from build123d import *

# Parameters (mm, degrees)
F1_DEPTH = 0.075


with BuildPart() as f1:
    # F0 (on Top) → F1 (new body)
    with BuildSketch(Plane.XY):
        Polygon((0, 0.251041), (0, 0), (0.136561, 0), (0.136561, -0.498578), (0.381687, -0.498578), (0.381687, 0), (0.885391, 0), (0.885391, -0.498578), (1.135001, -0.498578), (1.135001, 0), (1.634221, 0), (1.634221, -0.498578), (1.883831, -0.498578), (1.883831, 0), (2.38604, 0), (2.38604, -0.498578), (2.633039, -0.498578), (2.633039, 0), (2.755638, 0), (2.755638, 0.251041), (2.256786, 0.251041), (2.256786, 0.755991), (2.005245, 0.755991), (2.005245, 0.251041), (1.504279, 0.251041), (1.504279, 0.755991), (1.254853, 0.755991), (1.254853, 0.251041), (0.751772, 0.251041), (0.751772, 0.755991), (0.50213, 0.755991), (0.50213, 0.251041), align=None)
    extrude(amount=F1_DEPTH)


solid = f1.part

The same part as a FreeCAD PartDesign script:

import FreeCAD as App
import Part
import Sketcher

doc = App.newDocument("Part")
params = doc.addObject("Spreadsheet::Sheet", "Params")
for row, (alias, value) in enumerate([
    ("pad1_length", "0.075 mm"),
], start=1):
    params.set(f"A{row}", alias)
    params.set(f"B{row}", "=" + value)
    params.setAlias(f"B{row}", alias)

body = doc.addObject("PartDesign::Body", "Body")

# Sketch on XY plane
sketch1 = body.newObject("Sketcher::SketchObject", "Sketch")
sketch1.AttachmentSupport = (doc.getObject("XY_Plane"), [""])
sketch1.MapMode = "FlatFace"
sketch1.addGeometry(Part.LineSegment(App.Vector(0, 0.251041, 0), App.Vector(0, 0, 0)), False)
sketch1.addGeometry(Part.LineSegment(App.Vector(0, 0, 0), App.Vector(0.136561, 0, 0)), False)
sketch1.addGeometry(Part.LineSegment(App.Vector(0.136561, 0, 0), App.Vector(0.136561, -0.498578, 0)), False)
sketch1.addGeometry(Part.LineSegment(App.Vector(0.136561, -0.498578, 0), App.Vector(0.381687, -0.498578, 0)), False)
sketch1.addGeometry(Part.LineSegment(App.Vector(0.381687, -0.498578, 0), App.Vector(0.381687, 0, 0)), False)
sketch1.addGeometry(Part.LineSegment(App.Vector(0.381687, 0, 0), App.Vector(0.885391, 0, 0)), False)
sketch1.addGeometry(Part.LineSegment(App.Vector(0.885391, 0, 0), App.Vector(0.885391, -0.498578, 0)), False)
sketch1.addGeometry(Part.LineSegment(App.Vector(0.885391, -0.498578, 0), App.Vector(1.135001, -0.498578, 0)), False)
sketch1.addGeometry(Part.LineSegment(App.Vector(1.135001, -0.498578, 0), App.Vector(1.135001, 0, 0)), False)
sketch1.addGeometry(Part.LineSegment(App.Vector(1.135001, 0, 0), App.Vector(1.634221, 0, 0)), False)
sketch1.addGeometry(Part.LineSegment(App.Vector(1.634221, 0, 0), App.Vector(1.634221, -0.498578, 0)), False)
sketch1.addGeometry(Part.LineSegment(App.Vector(1.634221, -0.498578, 0), App.Vector(1.883831, -0.498578, 0)), False)
sketch1.addGeometry(Part.LineSegment(App.Vector(1.883831, -0.498578, 0), App.Vector(1.883831, 0, 0)), False)
sketch1.addGeometry(Part.LineSegment(App.Vector(1.883831, 0, 0), App.Vector(2.38604, 0, 0)), False)
sketch1.addGeometry(Part.LineSegment(App.Vector(2.38604, 0, 0), App.Vector(2.38604, -0.498578, 0)), False)
sketch1.addGeometry(Part.LineSegment(App.Vector(2.38604, -0.498578, 0), App.Vector(2.633039, -0.498578, 0)), False)
sketch1.addGeometry(Part.LineSegment(App.Vector(2.633039, -0.498578, 0), App.Vector(2.633039, 0, 0)), False)
sketch1.addGeometry(Part.LineSegment(App.Vector(2.633039, 0, 0), App.Vector(2.755638, 0, 0)), False)
sketch1.addGeometry(Part.LineSegment(App.Vector(2.755638, 0, 0), App.Vector(2.755638, 0.251041, 0)), False)
sketch1.addGeometry(Part.LineSegment(App.Vector(2.755638, 0.251041, 0), App.Vector(2.256786, 0.251041, 0)), False)
sketch1.addGeometry(Part.LineSegment(App.Vector(2.256786, 0.251041, 0), App.Vector(2.256786, 0.755991, 0)), False)
sketch1.addGeometry(Part.LineSegment(App.Vector(2.256786, 0.755991, 0), App.Vector(2.005245, 0.755991, 0)), False)
sketch1.addGeometry(Part.LineSegment(App.Vector(2.005245, 0.755991, 0), App.Vector(2.005245, 0.251041, 0)), False)
sketch1.addGeometry(Part.LineSegment(App.Vector(2.005245, 0.251041, 0), App.Vector(1.504279, 0.251041, 0)), False)
sketch1.addGeometry(Part.LineSegment(App.Vector(1.504279, 0.251041, 0), App.Vector(1.504279, 0.755991, 0)), False)
sketch1.addGeometry(Part.LineSegment(App.Vector(1.504279, 0.755991, 0), App.Vector(1.254853, 0.755991, 0)), False)
sketch1.addGeometry(Part.LineSegment(App.Vector(1.254853, 0.755991, 0), App.Vector(1.254853, 0.251041, 0)), False)
sketch1.addGeometry(Part.LineSegment(App.Vector(1.254853, 0.251041, 0), App.Vector(0.751772, 0.251041, 0)), False)
sketch1.addGeometry(Part.LineSegment(App.Vector(0.751772, 0.251041, 0), App.Vector(0.751772, 0.755991, 0)), False)
sketch1.addGeometry(Part.LineSegment(App.Vector(0.751772, 0.755991, 0), App.Vector(0.50213, 0.755991, 0)), False)
sketch1.addGeometry(Part.LineSegment(App.Vector(0.50213, 0.755991, 0), App.Vector(0.50213, 0.251041, 0)), False)
sketch1.addGeometry(Part.LineSegment(App.Vector(0.50213, 0.251041, 0), App.Vector(0, 0.251041, 0)), False)
sketch1.addConstraint(Sketcher.Constraint("Coincident", 0, 2, 1, 1))
sketch1.addConstraint(Sketcher.Constraint("Coincident", 1, 2, 2, 1))
sketch1.addConstraint(Sketcher.Constraint("Coincident", 2, 2, 3, 1))
sketch1.addConstraint(Sketcher.Constraint("Coincident", 3, 2, 4, 1))
sketch1.addConstraint(Sketcher.Constraint("Coincident", 4, 2, 5, 1))
sketch1.addConstraint(Sketcher.Constraint("Coincident", 5, 2, 6, 1))
sketch1.addConstraint(Sketcher.Constraint("Coincident", 6, 2, 7, 1))
sketch1.addConstraint(Sketcher.Constraint("Coincident", 7, 2, 8, 1))
sketch1.addConstraint(Sketcher.Constraint("Coincident", 8, 2, 9, 1))
sketch1.addConstraint(Sketcher.Constraint("Coincident", 9, 2, 10, 1))
sketch1.addConstraint(Sketcher.Constraint("Coincident", 10, 2, 11, 1))
sketch1.addConstraint(Sketcher.Constraint("Coincident", 11, 2, 12, 1))
sketch1.addConstraint(Sketcher.Constraint("Coincident", 12, 2, 13, 1))
sketch1.addConstraint(Sketcher.Constraint("Coincident", 13, 2, 14, 1))
sketch1.addConstraint(Sketcher.Constraint("Coincident", 14, 2, 15, 1))
sketch1.addConstraint(Sketcher.Constraint("Coincident", 15, 2, 16, 1))
sketch1.addConstraint(Sketcher.Constraint("Coincident", 16, 2, 17, 1))
sketch1.addConstraint(Sketcher.Constraint("Coincident", 17, 2, 18, 1))
sketch1.addConstraint(Sketcher.Constraint("Coincident", 18, 2, 19, 1))
sketch1.addConstraint(Sketcher.Constraint("Coincident", 19, 2, 20, 1))
sketch1.addConstraint(Sketcher.Constraint("Coincident", 20, 2, 21, 1))
sketch1.addConstraint(Sketcher.Constraint("Coincident", 21, 2, 22, 1))
sketch1.addConstraint(Sketcher.Constraint("Coincident", 22, 2, 23, 1))
sketch1.addConstraint(Sketcher.Constraint("Coincident", 23, 2, 24, 1))
sketch1.addConstraint(Sketcher.Constraint("Coincident", 24, 2, 25, 1))
sketch1.addConstraint(Sketcher.Constraint("Coincident", 25, 2, 26, 1))
sketch1.addConstraint(Sketcher.Constraint("Coincident", 26, 2, 27, 1))
sketch1.addConstraint(Sketcher.Constraint("Coincident", 27, 2, 28, 1))
sketch1.addConstraint(Sketcher.Constraint("Coincident", 28, 2, 29, 1))
sketch1.addConstraint(Sketcher.Constraint("Coincident", 29, 2, 30, 1))
sketch1.addConstraint(Sketcher.Constraint("Coincident", 30, 2, 31, 1))
sketch1.addConstraint(Sketcher.Constraint("Coincident", 31, 2, 0, 1))
sketch1.addConstraint(Sketcher.Constraint("Vertical", 0))
sketch1.addConstraint(Sketcher.Constraint("Horizontal", 1))
sketch1.addConstraint(Sketcher.Constraint("Vertical", 2))
sketch1.addConstraint(Sketcher.Constraint("Horizontal", 3))
sketch1.addConstraint(Sketcher.Constraint("Vertical", 4))
sketch1.addConstraint(Sketcher.Constraint("Horizontal", 5))
sketch1.addConstraint(Sketcher.Constraint("Vertical", 6))
sketch1.addConstraint(Sketcher.Constraint("Horizontal", 7))
sketch1.addConstraint(Sketcher.Constraint("Vertical", 8))
sketch1.addConstraint(Sketcher.Constraint("Horizontal", 9))
sketch1.addConstraint(Sketcher.Constraint("Vertical", 10))
sketch1.addConstraint(Sketcher.Constraint("Horizontal", 11))
sketch1.addConstraint(Sketcher.Constraint("Vertical", 12))
sketch1.addConstraint(Sketcher.Constraint("Horizontal", 13))
sketch1.addConstraint(Sketcher.Constraint("Vertical", 14))
sketch1.addConstraint(Sketcher.Constraint("Horizontal", 15))
sketch1.addConstraint(Sketcher.Constraint("Vertical", 16))
sketch1.addConstraint(Sketcher.Constraint("Horizontal", 17))
sketch1.addConstraint(Sketcher.Constraint("Vertical", 18))
sketch1.addConstraint(Sketcher.Constraint("Horizontal", 19))
sketch1.addConstraint(Sketcher.Constraint("Vertical", 20))
sketch1.addConstraint(Sketcher.Constraint("Horizontal", 21))
sketch1.addConstraint(Sketcher.Constraint("Vertical", 22))
sketch1.addConstraint(Sketcher.Constraint("Horizontal", 23))
sketch1.addConstraint(Sketcher.Constraint("Vertical", 24))
sketch1.addConstraint(Sketcher.Constraint("Horizontal", 25))
sketch1.addConstraint(Sketcher.Constraint("Vertical", 26))
sketch1.addConstraint(Sketcher.Constraint("Horizontal", 27))
sketch1.addConstraint(Sketcher.Constraint("Vertical", 28))
sketch1.addConstraint(Sketcher.Constraint("Horizontal", 29))
sketch1.addConstraint(Sketcher.Constraint("Vertical", 30))
sketch1.addConstraint(Sketcher.Constraint("Horizontal", 31))
sketch1.addConstraint(Sketcher.Constraint("Coincident", 0, 2, -1, 1))
sketch1.addConstraint(Sketcher.Constraint("PointOnObject", 4, 2, -1))
sketch1.addConstraint(Sketcher.Constraint("PointOnObject", 8, 2, -1))
sketch1.addConstraint(Sketcher.Constraint("PointOnObject", 12, 2, -1))
sketch1.addConstraint(Sketcher.Constraint("PointOnObject", 16, 2, -1))
sketch1.addConstraint(Sketcher.Constraint("Horizontal", 3, 2, 6, 2))
sketch1.addConstraint(Sketcher.Constraint("Horizontal", 7, 2, 10, 2))
sketch1.addConstraint(Sketcher.Constraint("Horizontal", 11, 2, 14, 2))
sketch1.addConstraint(Sketcher.Constraint("Horizontal", 19, 2, 22, 2))
sketch1.addConstraint(Sketcher.Constraint("Horizontal", 21, 2, 24, 2))
sketch1.addConstraint(Sketcher.Constraint("Horizontal", 23, 2, 26, 2))
sketch1.addConstraint(Sketcher.Constraint("Horizontal", 25, 2, 28, 2))
sketch1.addConstraint(Sketcher.Constraint("Horizontal", 27, 2, 30, 2))
sketch1.addConstraint(Sketcher.Constraint("Equal", 7, 11))
sketch1.addConstraint(Sketcher.Constraint("DistanceX", 15, 1, 15, 2, 0.246999))
sketch1.addConstraint(Sketcher.Constraint("DistanceX", 17, 1, 17, 2, 0.122599))
sketch1.addConstraint(Sketcher.Constraint("DistanceX", -1, 1, 7, 2, 1.135001))
sketch1.addConstraint(Sketcher.Constraint("DistanceX", 1, 1, 1, 2, 0.136561))
sketch1.addConstraint(Sketcher.Constraint("DistanceX", 7, 1, 7, 2, 0.24961))
sketch1.addConstraint(Sketcher.Constraint("DistanceX", 9, 1, 9, 2, 0.49922))
sketch1.addConstraint(Sketcher.Constraint("DistanceX", 13, 1, 13, 2, 0.502209))
sketch1.addConstraint(Sketcher.Constraint("DistanceX", 19, 2, 19, 1, 0.498852))
sketch1.addConstraint(Sketcher.Constraint("DistanceX", 21, 2, 21, 1, 0.251541))
sketch1.addConstraint(Sketcher.Constraint("DistanceX", 27, 2, 27, 1, 0.503081))
sketch1.addConstraint(Sketcher.Constraint("DistanceX", 31, 2, 31, 1, 0.50213))
sketch1.addConstraint(Sketcher.Constraint("DistanceY", 0, 2, 0, 1, 0.251041))
sketch1.addConstraint(Sketcher.Constraint("DistanceY", 20, 1, 20, 2, 0.50495))
sketch1.addConstraint(Sketcher.Constraint("DistanceX", 3, 1, 3, 2, 0.245126))
sketch1.addConstraint(Sketcher.Constraint("DistanceX", 23, 2, 23, 1, 0.500966))
sketch1.addConstraint(Sketcher.Constraint("DistanceX", 25, 2, 25, 1, 0.249426))
sketch1.addConstraint(Sketcher.Constraint("DistanceY", 2, 2, 2, 1, 0.498578))
pad1 = body.newObject("PartDesign::Pad", "Pad")
pad1.Profile = sketch1
pad1.setExpression("Length", "Params.pad1_length")

doc.recompute()
